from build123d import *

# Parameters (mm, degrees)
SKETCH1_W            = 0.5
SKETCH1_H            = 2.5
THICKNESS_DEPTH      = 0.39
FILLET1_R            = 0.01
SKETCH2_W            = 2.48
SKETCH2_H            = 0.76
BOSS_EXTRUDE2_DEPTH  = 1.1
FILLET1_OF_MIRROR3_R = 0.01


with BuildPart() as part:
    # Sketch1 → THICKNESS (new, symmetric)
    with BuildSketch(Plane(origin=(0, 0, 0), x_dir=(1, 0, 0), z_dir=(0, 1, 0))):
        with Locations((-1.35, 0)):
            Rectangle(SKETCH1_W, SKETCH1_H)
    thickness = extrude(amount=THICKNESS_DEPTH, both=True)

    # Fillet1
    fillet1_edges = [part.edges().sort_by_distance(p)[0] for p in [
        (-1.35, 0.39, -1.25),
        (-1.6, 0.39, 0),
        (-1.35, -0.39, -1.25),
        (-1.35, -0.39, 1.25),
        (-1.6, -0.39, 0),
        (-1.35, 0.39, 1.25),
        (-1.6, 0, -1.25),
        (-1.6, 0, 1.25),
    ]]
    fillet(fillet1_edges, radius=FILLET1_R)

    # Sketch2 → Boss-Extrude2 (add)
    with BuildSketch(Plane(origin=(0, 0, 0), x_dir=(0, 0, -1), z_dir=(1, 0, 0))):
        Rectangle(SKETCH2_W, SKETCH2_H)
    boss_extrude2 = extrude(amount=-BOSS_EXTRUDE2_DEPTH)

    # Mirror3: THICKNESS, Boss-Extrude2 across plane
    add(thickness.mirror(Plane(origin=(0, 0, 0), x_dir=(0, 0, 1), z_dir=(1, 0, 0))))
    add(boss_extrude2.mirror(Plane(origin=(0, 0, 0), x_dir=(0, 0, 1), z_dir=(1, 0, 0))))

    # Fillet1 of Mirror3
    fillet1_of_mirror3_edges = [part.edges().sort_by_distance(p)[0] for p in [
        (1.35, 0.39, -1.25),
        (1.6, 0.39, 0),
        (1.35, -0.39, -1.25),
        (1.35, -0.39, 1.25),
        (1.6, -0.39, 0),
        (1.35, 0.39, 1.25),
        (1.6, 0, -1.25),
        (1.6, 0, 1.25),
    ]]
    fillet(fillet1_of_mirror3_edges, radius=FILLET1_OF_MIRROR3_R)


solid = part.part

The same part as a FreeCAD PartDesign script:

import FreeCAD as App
import Part
import Sketcher
from FreeCAD import Vector
Q = App.Units.Quantity


def edges_at(feature, points):
    """Names of the edges that pass closest to the given points."""
    edges = feature.Shape.Edges
    near = lambda p: min(range(len(edges)), key=lambda i: edges[i].distToShape(Part.Vertex(*p))[0])
    return sorted({f"Edge{near(p) + 1}" for p in points})

doc = App.newDocument("Part")
body = doc.addObject("PartDesign::Body", "Body")

# Sketch on XZ plane
sketch1 = body.newObject("Sketcher::SketchObject", "Sketch")
sketch1.AttachmentSupport = (doc.getObject("XZ_Plane"), [""])
sketch1.MapMode = "FlatFace"
sketch1.addGeometry([
    Part.LineSegment(Vector(-1.6, -1.2, 0), Vector(-1.6, 1.2, 0)),
    Part.LineSegment(Vector(-1.6, 1.2, 0), Vector(-1.1, 1.2, 0)),
    Part.LineSegment(Vector(-1.1, 1.2, 0), Vector(-1.1, -1.2, 0)),
    Part.LineSegment(Vector(-1.1, -1.2, 0), Vector(-1.6, -1.2, 0)),
], False)
sketch1.addConstraint([
    Sketcher.Constraint("Coincident", 0, 2, 1, 1),
    Sketcher.Constraint("Coincident", 1, 2, 2, 1),
    Sketcher.Constraint("Coincident", 2, 2, 3, 1),
    Sketcher.Constraint("Coincident", 3, 2, 0, 1),
    Sketcher.Constraint("Vertical", 0),
    Sketcher.Constraint("Horizontal", 1),
    Sketcher.Constraint("Vertical", 2),
    Sketcher.Constraint("Horizontal", 3),
    Sketcher.Constraint("DistanceX", 1, 1, 1, 2, Q("0.5 mm")),
    Sketcher.Constraint("DistanceY", 0, 1, 0, 2, Q("2.5 mm")),
    Sketcher.Constraint("DistanceX", 0, 2, -1, 1, Q("1.6 mm")),
    Sketcher.Constraint("DistanceY", -1, 1, 0, 2, Q("1.25 mm")),
])
pad1 = body.newObject("PartDesign::Pad", "Pad")
pad1.Profile = sketch1
pad1.Length = 0.78
pad1.Midplane = True
doc.recompute()

fillet = body.newObject("PartDesign::Fillet", "Fillet")
fillet.Base = (pad1, edges_at(pad1, [
    (-1.35, 0.39, -1.25),
    (-1.6, 0.39, 0),
    (-1.35, -0.39, -1.25),
    (-1.35, -0.39, 1.25),
    (-1.6, -0.39, 0),
    (-1.35, 0.39, 1.25),
    (-1.6, 0, -1.25),
    (-1.6, 0, 1.25),
]))
fillet.Radius = 0.01

# Sketch on YZ plane
sketch2 = body.newObject("Sketcher::SketchObject", "Sketch001")
sketch2.AttachmentSupport = (doc.getObject("YZ_Plane"), [""])
sketch2.MapMode = "FlatFace"
sketch2.addGeometry([
    Part.LineSegment(Vector(0.4, 1.2, 0), Vector(-0.4, 1.2, 0)),
    Part.LineSegment(Vector(-0.4, 1.2, 0), Vector(-0.4, -1.2, 0)),
    Part.LineSegment(Vector(-0.4, -1.2, 0), Vector(0.4, -1.2, 0)),
    Part.LineSegment(Vector(0.4, -1.2, 0), Vector(0.4, 1.2, 0)),
], False)
sketch2.addConstraint([
    Sketcher.Constraint("Coincident", 0, 2, 1, 1),
    Sketcher.Constraint("Coincident", 1, 2, 2, 1),
    Sketcher.Constraint("Coincident", 2, 2, 3, 1),
    Sketcher.Constraint("Coincident", 3, 2, 0, 1),
    Sketcher.Constraint("Horizontal", 0),
    Sketcher.Constraint("Vertical", 1),
    Sketcher.Constraint("Horizontal", 2),
    Sketcher.Constraint("Vertical", 3),
    Sketcher.Constraint("Symmetric", 0, 2, 2, 2, -1, 1),
    Sketcher.Constraint("DistanceX", 0, 2, 0, 1, Q("0.76 mm")),
    Sketcher.Constraint("DistanceY", 1, 2, 1, 1, Q("2.48 mm")),
])
pad2 = body.newObject("PartDesign::Pad", "Pad001")
pad2.Profile = sketch2
pad2.Length = 1.1
pad2.Reversed = True
doc.recompute()

mirrored = body.newObject("PartDesign::Mirrored", "Mirrored")
mirrored.Originals = [pad1, pad2]
mirrored.MirrorPlane = (doc.getObject("YZ_Plane"), [""])
body.Tip = mirrored
doc.recompute()

fillet2 = body.newObject("PartDesign::Fillet", "Fillet001")
fillet2.Base = (mirrored, edges_at(mirrored, [
    (1.35, 0.39, -1.25),
    (1.6, 0.39, 0),
    (1.35, -0.39, -1.25),
    (1.35, -0.39, 1.25),
    (1.6, -0.39, 0),
    (1.35, 0.39, 1.25),
    (1.6, 0, -1.25),
    (1.6, 0, 1.25),
]))
fillet2.Radius = 0.01

doc.recompute()
